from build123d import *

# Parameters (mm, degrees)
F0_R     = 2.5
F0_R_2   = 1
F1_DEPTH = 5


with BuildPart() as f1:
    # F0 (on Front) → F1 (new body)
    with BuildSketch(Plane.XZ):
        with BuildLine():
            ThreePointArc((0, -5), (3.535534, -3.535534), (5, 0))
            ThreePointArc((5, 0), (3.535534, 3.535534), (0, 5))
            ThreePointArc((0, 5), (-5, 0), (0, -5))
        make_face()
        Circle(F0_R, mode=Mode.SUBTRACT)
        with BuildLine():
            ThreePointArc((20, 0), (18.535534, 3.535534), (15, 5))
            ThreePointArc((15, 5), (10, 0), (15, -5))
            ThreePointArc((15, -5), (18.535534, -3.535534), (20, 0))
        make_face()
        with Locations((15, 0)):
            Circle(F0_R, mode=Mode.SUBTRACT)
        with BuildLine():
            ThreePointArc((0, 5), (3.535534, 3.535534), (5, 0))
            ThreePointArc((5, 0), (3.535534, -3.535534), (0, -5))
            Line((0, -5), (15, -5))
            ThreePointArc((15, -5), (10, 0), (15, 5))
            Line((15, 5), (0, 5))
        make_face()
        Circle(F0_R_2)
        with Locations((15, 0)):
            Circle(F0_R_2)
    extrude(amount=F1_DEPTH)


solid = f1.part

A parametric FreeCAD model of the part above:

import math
import FreeCAD as App
import Part
import Sketcher

V = App.Vector
Q = App.Units.Quantity

doc = App.newDocument("Part")
body = doc.addObject("PartDesign::Body", "Body")
body.AllowCompound = True

sketch1 = body.newObject("Sketcher::SketchObject", "Sketch")
sketch1.AttachmentSupport = (doc.getObject("XZ_Plane"), [""])
sketch1.MapMode = "FlatFace"
sketch1.addGeometry([
    Part.ArcOfCircle(Part.Circle(V(0, 0, 0), V(0, 0, 1), 5), math.radians(90), math.radians(270)),
    Part.LineSegment(V(0, -5, 0), V(15, -5, 0)),
    Part.ArcOfCircle(Part.Circle(V(15, 0, 0), V(0, 0, 1), 5), math.radians(-90), math.radians(0)),
    Part.ArcOfCircle(Part.Circle(V(15, 0, 0), V(0, 0, 1), 5), math.radians(0), math.radians(90)),
    Part.LineSegment(V(15, 5, 0), V(0, 5, 0)),
    Part.Circle(V(0, 0, 0), V(0, 0, 1), 2.5),
    Part.Circle(V(15, 0, 0), V(0, 0, 1), 2.5),
    Part.Circle(V(0, 0, 0), V(0, 0, 1), 1),
    Part.Circle(V(15, 0, 0), V(0, 0, 1), 1),
], False)
sketch1.addConstraint([
    Sketcher.Constraint("Tangent", 0, 2, 1, 1),
    Sketcher.Constraint("Tangent", 1, 2, 2, 1),
    Sketcher.Constraint("Tangent", 2, 2, 3, 1),
    Sketcher.Constraint("Tangent", 3, 2, 4, 1),
    Sketcher.Constraint("Tangent", 4, 2, 0, 1),
    Sketcher.Constraint("Horizontal", 1),
    Sketcher.Constraint("Horizontal", 4),
    Sketcher.Constraint("Coincident", 0, 3, -1, 1),
    Sketcher.Constraint("Coincident", 5, 3, -1, 1),
    Sketcher.Constraint("Coincident", 7, 3, -1, 1),
    Sketcher.Constraint("Coincident", 6, 3, 2, 3),
    Sketcher.Constraint("Coincident", 8, 3, 2, 3),
    Sketcher.Constraint("Equal", 0, 2),
    Sketcher.Constraint("Equal", 5, 6),
    Sketcher.Constraint("Equal", 7, 8),
    Sketcher.Constraint("PointOnObject", 2, 2, -1),
    Sketcher.Constraint("Diameter", 5, Q("5 mm")),
    Sketcher.Constraint("Diameter", 7, Q("2 mm")),
    Sketcher.Constraint("Radius", 0, Q("5 mm")),
    Sketcher.Constraint("DistanceX", 1, 1, 1, 2, Q("15 mm")),
])
pad1 = body.newObject("PartDesign::Pad", "Pad")
pad1.Profile = sketch1
pad1.Length = 5

doc.recompute()
